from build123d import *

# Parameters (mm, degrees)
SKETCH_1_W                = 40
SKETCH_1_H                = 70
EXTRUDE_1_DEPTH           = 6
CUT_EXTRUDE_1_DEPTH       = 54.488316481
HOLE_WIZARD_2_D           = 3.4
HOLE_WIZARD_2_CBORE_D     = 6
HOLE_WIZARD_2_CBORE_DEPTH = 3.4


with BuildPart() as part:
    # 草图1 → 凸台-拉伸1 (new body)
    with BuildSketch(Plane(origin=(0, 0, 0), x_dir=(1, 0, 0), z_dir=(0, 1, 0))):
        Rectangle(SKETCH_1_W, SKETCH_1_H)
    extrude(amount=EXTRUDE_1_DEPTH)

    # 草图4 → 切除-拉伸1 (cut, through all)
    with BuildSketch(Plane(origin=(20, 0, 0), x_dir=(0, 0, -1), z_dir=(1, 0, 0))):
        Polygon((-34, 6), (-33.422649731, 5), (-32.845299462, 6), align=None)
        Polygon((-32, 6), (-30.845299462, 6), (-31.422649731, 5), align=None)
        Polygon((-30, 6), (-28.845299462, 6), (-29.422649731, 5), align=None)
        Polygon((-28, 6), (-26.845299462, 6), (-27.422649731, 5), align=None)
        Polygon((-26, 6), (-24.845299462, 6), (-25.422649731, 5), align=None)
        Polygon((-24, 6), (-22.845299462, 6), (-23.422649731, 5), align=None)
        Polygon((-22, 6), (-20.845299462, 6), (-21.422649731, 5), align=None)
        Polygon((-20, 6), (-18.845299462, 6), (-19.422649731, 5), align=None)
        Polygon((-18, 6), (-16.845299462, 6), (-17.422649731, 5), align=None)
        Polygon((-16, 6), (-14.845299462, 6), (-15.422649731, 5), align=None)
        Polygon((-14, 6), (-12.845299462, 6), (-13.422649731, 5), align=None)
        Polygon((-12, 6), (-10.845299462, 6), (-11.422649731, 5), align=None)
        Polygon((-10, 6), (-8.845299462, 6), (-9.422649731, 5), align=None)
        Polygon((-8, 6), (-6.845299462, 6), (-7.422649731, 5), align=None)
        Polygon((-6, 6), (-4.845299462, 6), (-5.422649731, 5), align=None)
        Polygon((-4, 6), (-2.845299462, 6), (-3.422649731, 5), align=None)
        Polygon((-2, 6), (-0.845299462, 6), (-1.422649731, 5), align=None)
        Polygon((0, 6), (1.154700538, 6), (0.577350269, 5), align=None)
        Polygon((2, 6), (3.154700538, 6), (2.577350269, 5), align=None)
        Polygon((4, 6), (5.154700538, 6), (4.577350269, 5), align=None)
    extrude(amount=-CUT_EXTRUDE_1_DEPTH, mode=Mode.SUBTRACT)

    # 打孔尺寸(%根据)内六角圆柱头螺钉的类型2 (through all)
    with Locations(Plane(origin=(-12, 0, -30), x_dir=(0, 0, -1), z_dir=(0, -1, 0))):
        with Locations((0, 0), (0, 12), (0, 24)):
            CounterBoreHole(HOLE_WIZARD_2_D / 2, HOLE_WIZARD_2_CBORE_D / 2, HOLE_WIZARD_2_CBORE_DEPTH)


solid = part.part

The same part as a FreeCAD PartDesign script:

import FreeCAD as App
import Part
import Sketcher
Q = App.Units.Quantity

doc = App.newDocument("Part")
params = doc.addObject("Spreadsheet::Sheet", "Params")
for row, (alias, value) in enumerate([
    ("sketch1_width", "40 mm"),
    ("sketch1_height", "70 mm"),
    ("pad1_length", "6 mm"),
    ("sketch3_diameter", "3.4 mm"),
    ("hole_diameter", "3.4 mm"),
    ("hole_cbore_diameter", "6 mm"),
    ("hole_cbore_depth", "3.4 mm"),
], start=1):
    params.set(f"A{row}", alias)
    params.set(f"B{row}", "=" + value)
    params.setAlias(f"B{row}", alias)

body = doc.addObject("PartDesign::Body", "Body")

# Sketch on XZ plane
sketch1 = body.newObject("Sketcher::SketchObject", "Sketch")
sketch1.AttachmentSupport = (doc.getObject("XZ_Plane"), [""])
sketch1.MapMode = "FlatFace"
sketch1.addGeometry(Part.LineSegment(App.Vector(-20, -35, 0), App.Vector(-20, 35, 0)), False)
sketch1.addGeometry(Part.LineSegment(App.Vector(-20, 35, 0), App.Vector(20, 35, 0)), False)
sketch1.addGeometry(Part.LineSegment(App.Vector(20, 35, 0), App.Vector(20, -35, 0)), False)
sketch1.addGeometry(Part.LineSegment(App.Vector(20, -35, 0), App.Vector(-20, -35, 0)), False)
sketch1.addConstraint(Sketcher.Constraint("Coincident", 0, 2, 1, 1))
sketch1.addConstraint(Sketcher.Constraint("Coincident", 1, 2, 2, 1))
sketch1.addConstraint(Sketcher.Constraint("Coincident", 2, 2, 3, 1))
sketch1.addConstraint(Sketcher.Constraint("Coincident", 3, 2, 0, 1))
sketch1.addConstraint(Sketcher.Constraint("Vertical", 0))
sketch1.addConstraint(Sketcher.Constraint("Horizontal", 1))
sketch1.addConstraint(Sketcher.Constraint("Vertical", 2))
sketch1.addConstraint(Sketcher.Constraint("Horizontal", 3))
sketch1.addConstraint(Sketcher.Constraint("Symmetric", 0, 2, 2, 2, -1, 1))
sketch1.addConstraint(Sketcher.Constraint("DistanceX", 1, 1, 1, 2, Q("40 mm")))
sketch1.addConstraint(Sketcher.Constraint("DistanceY", 0, 1, 0, 2, Q("70 mm")))
sketch1.setExpression("Constraints[9]", "Params.sketch1_width")
sketch1.setExpression("Constraints[10]", "Params.sketch1_height")
pad1 = body.newObject("PartDesign::Pad", "Pad")
pad1.Profile = sketch1
pad1.setExpression("Length", "Params.pad1_length")
pad1.Reversed = True

# Sketch on YZ plane
sketch2 = body.newObject("Sketcher::SketchObject", "Sketch001")
sketch2.AttachmentSupport = (doc.getObject("YZ_Plane"), [""])
sketch2.MapMode = "FlatFace"
sketch2.AttachmentOffset = App.Placement(App.Vector(0, 0, 20), App.Rotation())
sketch2.addGeometry(Part.LineSegment(App.Vector(6, 34, 0), App.Vector(5, 33.42265, 0)), False)
sketch2.addGeometry(Part.LineSegment(App.Vector(5, 33.42265, 0), App.Vector(6, 32.845299, 0)), False)
sketch2.addGeometry(Part.LineSegment(App.Vector(6, 32.845299, 0), App.Vector(6, 34, 0)), False)
sketch2.addGeometry(Part.LineSegment(App.Vector(6, 30.845299, 0), App.Vector(6, 32, 0)), False)
sketch2.addGeometry(Part.LineSegment(App.Vector(6, 32, 0), App.Vector(5, 31.42265, 0)), False)
sketch2.addGeometry(Part.LineSegment(App.Vector(5, 31.42265, 0), App.Vector(6, 30.845299, 0)), False)
sketch2.addGeometry(Part.LineSegment(App.Vector(6, 28.845299, 0), App.Vector(6, 30, 0)), False)
sketch2.addGeometry(Part.LineSegment(App.Vector(6, 30, 0), App.Vector(5, 29.42265, 0)), False)
sketch2.addGeometry(Part.LineSegment(App.Vector(5, 29.42265, 0), App.Vector(6, 28.845299, 0)), False)
sketch2.addGeometry(Part.LineSegment(App.Vector(6, 26.845299, 0), App.Vector(6, 28, 0)), False)
sketch2.addGeometry(Part.LineSegment(App.Vector(6, 28, 0), App.Vector(5, 27.42265, 0)), False)
sketch2.addGeometry(Part.LineSegment(App.Vector(5, 27.42265, 0), App.Vector(6, 26.845299, 0)), False)
sketch2.addGeometry(Part.LineSegment(App.Vector(6, 24.845299, 0), App.Vector(6, 26, 0)), False)
sketch2.addGeometry(Part.LineSegment(App.Vector(6, 26, 0), App.Vector(5, 25.42265, 0)), False)
sketch2.addGeometry(Part.LineSegment(App.Vector(5, 25.42265, 0), App.Vector(6, 24.845299, 0)), False)
sketch2.addGeometry(Part.LineSegment(App.Vector(6, 22.845299, 0), App.Vector(6, 24, 0)), False)
sketch2.addGeometry(Part.LineSegment(App.Vector(6, 24, 0), App.Vector(5, 23.42265, 0)), False)
sketch2.addGeometry(Part.LineSegment(App.Vector(5, 23.42265, 0), App.Vector(6, 22.845299, 0)), False)
sketch2.addGeometry(Part.LineSegment(App.Vector(6, 20.845299, 0), App.Vector(6, 22, 0)), False)
sketch2.addGeometry(Part.LineSegment(App.Vector(6, 22, 0), App.Vector(5, 21.42265, 0)), False)
sketch2.addGeometry(Part.LineSegment(App.Vector(5, 21.42265, 0), App.Vector(6, 20.845299, 0)), False)
sketch2.addGeometry(Part.LineSegment(App.Vector(6, 18.845299, 0), App.Vector(6, 20, 0)), False)
sketch2.addGeometry(Part.LineSegment(App.Vector(6, 20, 0), App.Vector(5, 19.42265, 0)), False)
sketch2.addGeometry(Part.LineSegment(App.Vector(5, 19.42265, 0), App.Vector(6, 18.845299, 0)), False)
sketch2.addGeometry(Part.LineSegment(App.Vector(6, 16.845299, 0), App.Vector(6, 18, 0)), False)
sketch2.addGeometry(Part.LineSegment(App.Vector(6, 18, 0), App.Vector(5, 17.42265, 0)), False)
sketch2.addGeometry(Part.LineSegment(App.Vector(5, 17.42265, 0), App.Vector(6, 16.845299, 0)), False)
sketch2.addGeometry(Part.LineSegment(App.Vector(6, 14.845299, 0), App.Vector(6, 16, 0)), False)
sketch2.addGeometry(Part.LineSegment(App.Vector(6, 16, 0), App.Vector(5, 15.42265, 0)), False)
sketch2.addGeometry(Part.LineSegment(App.Vector(5, 15.42265, 0), App.Vector(6, 14.845299, 0)), False)
sketch2.addGeometry(Part.LineSegment(App.Vector(6, 12.845299, 0), App.Vector(6, 14, 0)), False)
sketch2.addGeometry(Part.LineSegment(App.Vector(6, 14, 0), App.Vector(5, 13.42265, 0)), False)
sketch2.addGeometry(Part.LineSegment(App.Vector(5, 13.42265, 0), App.Vector(6, 12.845299, 0)), False)
sketch2.addGeometry(Part.LineSegment(App.Vector(6, 10.845299, 0), App.Vector(6, 12, 0)), False)
sketch2.addGeometry(Part.LineSegment(App.Vector(6, 12, 0), App.Vector(5, 11.42265, 0)), False)
sketch2.addGeometry(Part.LineSegment(App.Vector(5, 11.42265, 0), App.Vector(6, 10.845299, 0)), False)
sketch2.addGeometry(Part.LineSegment(App.Vector(6, 8.845299, 0), App.Vector(6, 10, 0)), False)
sketch2.addGeometry(Part.LineSegment(App.Vector(6, 10, 0), App.Vector(5, 9.42265, 0)), False)
sketch2.addGeometry(Part.LineSegment(App.Vector(5, 9.42265, 0), App.Vector(6, 8.845299, 0)), False)
sketch2.addGeometry(Part.LineSegment(App.Vector(6, 6.845299, 0), App.Vector(6, 8, 0)), False)
sketch2.addGeometry(Part.LineSegment(App.Vector(6, 8, 0), App.Vector(5, 7.42265, 0)), False)
sketch2.addGeometry(Part.LineSegment(App.Vector(5, 7.42265, 0), App.Vector(6, 6.845299, 0)), False)
sketch2.addGeometry(Part.LineSegment(App.Vector(6, 4.845299, 0), App.Vector(6, 6, 0)), False)
sketch2.addGeometry(Part.LineSegment(App.Vector(6, 6, 0), App.Vector(5, 5.42265, 0)), False)
sketch2.addGeometry(Part.LineSegment(App.Vector(5, 5.42265, 0), App.Vector(6, 4.845299, 0)), False)
sketch2.addGeometry(Part.LineSegment(App.Vector(6, 2.845299, 0), App.Vector(6, 4, 0)), False)
sketch2.addGeometry(Part.LineSegment(App.Vector(6, 4, 0), App.Vector(5, 3.42265, 0)), False)
sketch2.addGeometry(Part.LineSegment(App.Vector(5, 3.42265, 0), App.Vector(6, 2.845299, 0)), False)
sketch2.addGeometry(Part.LineSegment(App.Vector(6, 0.845299, 0), App.Vector(6, 2, 0)), False)
sketch2.addGeometry(Part.LineSegment(App.Vector(6, 2, 0), App.Vector(5, 1.42265, 0)), False)
sketch2.addGeometry(Part.LineSegment(App.Vector(5, 1.42265, 0), App.Vector(6, 0.845299, 0)), False)
sketch2.addGeometry(Part.LineSegment(App.Vector(6, -1.154701, 0), App.Vector(6, 0, 0)), False)
sketch2.addGeometry(Part.LineSegment(App.Vector(6, 0, 0), App.Vector(5, -0.57735, 0)), False)
sketch2.addGeometry(Part.LineSegment(App.Vector(5, -0.57735, 0), App.Vector(6, -1.154701, 0)), False)
sketch2.addGeometry(Part.LineSegment(App.Vector(6, -3.154701, 0), App.Vector(6, -2, 0)), False)
sketch2.addGeometry(Part.LineSegment(App.Vector(6, -2, 0), App.Vector(5, -2.57735, 0)), False)
sketch2.addGeometry(Part.LineSegment(App.Vector(5, -2.57735, 0), App.Vector(6, -3.154701, 0)), False)
sketch2.addGeometry(Part.LineSegment(App.Vector(6, -5.154701, 0), App.Vector(6, -4, 0)), False)
sketch2.addGeometry(Part.LineSegment(App.Vector(6, -4, 0), App.Vector(5, -4.57735, 0)), False)
sketch2.addGeometry(Part.LineSegment(App.Vector(5, -4.57735, 0), App.Vector(6, -5.154701, 0)), False)
sketch2.addConstraint(Sketcher.Constraint("Coincident", 0, 2, 1, 1))
sketch2.addConstraint(Sketcher.Constraint("Coincident", 1, 2, 2, 1))
sketch2.addConstraint(Sketcher.Constraint("Coincident", 2, 2, 0, 1))
sketch2.addConstraint(Sketcher.Constraint("Coincident", 3, 2, 4, 1))
sketch2.addConstraint(Sketcher.Constraint("Coincident", 4, 2, 5, 1))
sketch2.addConstraint(Sketcher.Constraint("Coincident", 5, 2, 3, 1))
sketch2.addConstraint(Sketcher.Constraint("Coincident", 6, 2, 7, 1))
sketch2.addConstraint(Sketcher.Constraint("Coincident", 7, 2, 8, 1))
sketch2.addConstraint(Sketcher.Constraint("Coincident", 8, 2, 6, 1))
sketch2.addConstraint(Sketcher.Constraint("Coincident", 9, 2, 10, 1))
sketch2.addConstraint(Sketcher.Constraint("Coincident", 10, 2, 11, 1))
sketch2.addConstraint(Sketcher.Constraint("Coincident", 11, 2, 9, 1))
sketch2.addConstraint(Sketcher.Constraint("Coincident", 12, 2, 13, 1))
sketch2.addConstraint(Sketcher.Constraint("Coincident", 13, 2, 14, 1))
sketch2.addConstraint(Sketcher.Constraint("Coincident", 14, 2, 12, 1))
sketch2.addConstraint(Sketcher.Constraint("Coincident", 15, 2, 16, 1))
sketch2.addConstraint(Sketcher.Constraint("Coincident", 16, 2, 17, 1))
sketch2.addConstraint(Sketcher.Constraint("Coincident", 17, 2, 15, 1))
sketch2.addConstraint(Sketcher.Constraint("Coincident", 18, 2, 19, 1))
sketch2.addConstraint(Sketcher.Constraint("Coincident", 19, 2, 20, 1))
sketch2.addConstraint(Sketcher.Constraint("Coincident", 20, 2, 18, 1))
sketch2.addConstraint(Sketcher.Constraint("Coincident", 21, 2, 22, 1))
sketch2.addConstraint(Sketcher.Constraint("Coincident", 22, 2, 23, 1))
sketch2.addConstraint(Sketcher.Constraint("Coincident", 23, 2, 21, 1))
sketch2.addConstraint(Sketcher.Constraint("Coincident", 24, 2, 25, 1))
sketch2.addConstraint(Sketcher.Constraint("Coincident", 25, 2, 26, 1))
sketch2.addConstraint(Sketcher.Constraint("Coincident", 26, 2, 24, 1))
sketch2.addConstraint(Sketcher.Constraint("Coincident", 27, 2, 28, 1))
sketch2.addConstraint(Sketcher.Constraint("Coincident", 28, 2, 29, 1))
sketch2.addConstraint(Sketcher.Constraint("Coincident", 29, 2, 27, 1))
sketch2.addConstraint(Sketcher.Constraint("Coincident", 30, 2, 31, 1))
sketch2.addConstraint(Sketcher.Constraint("Coincident", 31, 2, 32, 1))
sketch2.addConstraint(Sketcher.Constraint("Coincident", 32, 2, 30, 1))
sketch2.addConstraint(Sketcher.Constraint("Coincident", 33, 2, 34, 1))
sketch2.addConstraint(Sketcher.Constraint("Coincident", 34, 2, 35, 1))
sketch2.addConstraint(Sketcher.Constraint("Coincident", 35, 2, 33, 1))
sketch2.addConstraint(Sketcher.Constraint("Coincident", 36, 2, 37, 1))
sketch2.addConstraint(Sketcher.Constraint("Coincident", 37, 2, 38, 1))
sketch2.addConstraint(Sketcher.Constraint("Coincident", 38, 2, 36, 1))
sketch2.addConstraint(Sketcher.Constraint("Coincident", 39, 2, 40, 1))
sketch2.addConstraint(Sketcher.Constraint("Coincident", 40, 2, 41, 1))
sketch2.addConstraint(Sketcher.Constraint("Coincident", 41, 2, 39, 1))
sketch2.addConstraint(Sketcher.Constraint("Coincident", 42, 2, 43, 1))
sketch2.addConstraint(Sketcher.Constraint("Coincident", 43, 2, 44, 1))
sketch2.addConstraint(Sketcher.Constraint("Coincident", 44, 2, 42, 1))
sketch2.addConstraint(Sketcher.Constraint("Coincident", 45, 2, 46, 1))
sketch2.addConstraint(Sketcher.Constraint("Coincident", 46, 2, 47, 1))
sketch2.addConstraint(Sketcher.Constraint("Coincident", 47, 2, 45, 1))
sketch2.addConstraint(Sketcher.Constraint("Coincident", 48, 2, 49, 1))
sketch2.addConstraint(Sketcher.Constraint("Coincident", 49, 2, 50, 1))
sketch2.addConstraint(Sketcher.Constraint("Coincident", 50, 2, 48, 1))
sketch2.addConstraint(Sketcher.Constraint("Coincident", 51, 2, 52, 1))
sketch2.addConstraint(Sketcher.Constraint("Coincident", 52, 2, 53, 1))
sketch2.addConstraint(Sketcher.Constraint("Coincident", 53, 2, 51, 1))
sketch2.addConstraint(Sketcher.Constraint("Coincident", 54, 2, 55, 1))
sketch2.addConstraint(Sketcher.Constraint("Coincident", 55, 2, 56, 1))
sketch2.addConstraint(Sketcher.Constraint("Coincident", 56, 2, 54, 1))
sketch2.addConstraint(Sketcher.Constraint("Coincident", 57, 2, 58, 1))
sketch2.addConstraint(Sketcher.Constraint("Coincident", 58, 2, 59, 1))
sketch2.addConstraint(Sketcher.Constraint("Coincident", 59, 2, 57, 1))
sketch2.addConstraint(Sketcher.Constraint("Vertical", 2))
sketch2.addConstraint(Sketcher.Constraint("Vertical", 3))
sketch2.addConstraint(Sketcher.Constraint("Vertical", 6))
sketch2.addConstraint(Sketcher.Constraint("Vertical", 9))
sketch2.addConstraint(Sketcher.Constraint("Vertical", 12))
sketch2.addConstraint(Sketcher.Constraint("Vertical", 15))
sketch2.addConstraint(Sketcher.Constraint("Vertical", 18))
sketch2.addConstraint(Sketcher.Constraint("Vertical", 21))
sketch2.addConstraint(Sketcher.Constraint("Vertical", 24))
sketch2.addConstraint(Sketcher.Constraint("Vertical", 27))
sketch2.addConstraint(Sketcher.Constraint("Vertical", 30))
sketch2.addConstraint(Sketcher.Constraint("Vertical", 33))
sketch2.addConstraint(Sketcher.Constraint("Vertical", 36))
sketch2.addConstraint(Sketcher.Constraint("Vertical", 39))
sketch2.addConstraint(Sketcher.Constraint("Vertical", 42))
sketch2.addConstraint(Sketcher.Constraint("Vertical", 45))
sketch2.addConstraint(Sketcher.Constraint("Vertical", 48))
sketch2.addConstraint(Sketcher.Constraint("Vertical", 51))
sketch2.addConstraint(Sketcher.Constraint("Vertical", 54))
sketch2.addConstraint(Sketcher.Constraint("Vertical", 57))
sketch2.addConstraint(Sketcher.Constraint("Symmetric", 48, 2, 54, 2, -1))
sketch2.addConstraint(Sketcher.Constraint("Symmetric", 45, 2, 57, 2, -1))
sketch2.addConstraint(Sketcher.Constraint("PointOnObject", 51, 2, -1))
sketch2.addConstraint(Sketcher.Constraint("Parallel", 0, 4))
sketch2.addConstraint(Sketcher.Constraint("Parallel", 1, 5))
sketch2.addConstraint(Sketcher.Constraint("Parallel", 4, 7))
sketch2.addConstraint(Sketcher.Constraint("Parallel", 5, 8))
sketch2.addConstraint(Sketcher.Constraint("Parallel", 7, 10))
sketch2.addConstraint(Sketcher.Constraint("Parallel", 8, 11))
sketch2.addConstraint(Sketcher.Constraint("Parallel", 10, 13))
sketch2.addConstraint(Sketcher.Constraint("Parallel", 11, 14))
sketch2.addConstraint(Sketcher.Constraint("Parallel", 13, 16))
sketch2.addConstraint(Sketcher.Constraint("Parallel", 14, 17))
sketch2.addConstraint(Sketcher.Constraint("Parallel", 16, 19))
sketch2.addConstraint(Sketcher.Constraint("Parallel", 17, 20))
sketch2.addConstraint(Sketcher.Constraint("Parallel", 19, 22))
sketch2.addConstraint(Sketcher.Constraint("Parallel", 20, 23))
sketch2.addConstraint(Sketcher.Constraint("Parallel", 22, 25))
sketch2.addConstraint(Sketcher.Constraint("Parallel", 23, 26))
sketch2.addConstraint(Sketcher.Constraint("Parallel", 25, 28))
sketch2.addConstraint(Sketcher.Constraint("Parallel", 26, 29))
sketch2.addConstraint(Sketcher.Constraint("Parallel", 28, 31))
sketch2.addConstraint(Sketcher.Constraint("Parallel", 29, 32))
sketch2.addConstraint(Sketcher.Constraint("Parallel", 31, 34))
sketch2.addConstraint(Sketcher.Constraint("Parallel", 32, 35))
sketch2.addConstraint(Sketcher.Constraint("Parallel", 34, 37))
sketch2.addConstraint(Sketcher.Constraint("Parallel", 35, 38))
sketch2.addConstraint(Sketcher.Constraint("Parallel", 37, 40))
sketch2.addConstraint(Sketcher.Constraint("Parallel", 38, 41))
sketch2.addConstraint(Sketcher.Constraint("Parallel", 40, 43))
sketch2.addConstraint(Sketcher.Constraint("Parallel", 41, 44))
sketch2.addConstraint(Sketcher.Constraint("Parallel", 43, 46))
sketch2.addConstraint(Sketcher.Constraint("Parallel", 44, 47))
sketch2.addConstraint(Sketcher.Constraint("Parallel", 46, 49))
sketch2.addConstraint(Sketcher.Constraint("Parallel", 47, 50))
sketch2.addConstraint(Sketcher.Constraint("Parallel", 49, 52))
sketch2.addConstraint(Sketcher.Constraint("Parallel", 50, 53))
sketch2.addConstraint(Sketcher.Constraint("Parallel", 52, 55))
sketch2.addConstraint(Sketcher.Constraint("Parallel", 53, 56))
sketch2.addConstraint(Sketcher.Constraint("Parallel", 55, 58))
sketch2.addConstraint(Sketcher.Constraint("Parallel", 56, 59))
sketch2.addConstraint(Sketcher.Constraint("Vertical", 2, 2, 3, 2))
sketch2.addConstraint(Sketcher.Constraint("Vertical", 0, 2, 4, 2))
sketch2.addConstraint(Sketcher.Constraint("Vertical", 5, 2, 6, 2))
sketch2.addConstraint(Sketcher.Constraint("Vertical", 4, 2, 7, 2))
sketch2.addConstraint(Sketcher.Constraint("Vertical", 8, 2, 9, 2))
sketch2.addConstraint(Sketcher.Constraint("Vertical", 7, 2, 10, 2))
sketch2.addConstraint(Sketcher.Constraint("Vertical", 11, 2, 12, 2))
sketch2.addConstraint(Sketcher.Constraint("Vertical", 10, 2, 13, 2))
sketch2.addConstraint(Sketcher.Constraint("Vertical", 14, 2, 15, 2))
sketch2.addConstraint(Sketcher.Constraint("Vertical", 13, 2, 16, 2))
sketch2.addConstraint(Sketcher.Constraint("Vertical", 17, 2, 18, 2))
sketch2.addConstraint(Sketcher.Constraint("Vertical", 16, 2, 19, 2))
sketch2.addConstraint(Sketcher.Constraint("Vertical", 20, 2, 21, 2))
sketch2.addConstraint(Sketcher.Constraint("Vertical", 19, 2, 22, 2))
sketch2.addConstraint(Sketcher.Constraint("Vertical", 23, 2, 24, 2))
sketch2.addConstraint(Sketcher.Constraint("Vertical", 22, 2, 25, 2))
sketch2.addConstraint(Sketcher.Constraint("Vertical", 26, 2, 27, 2))
sketch2.addConstraint(Sketcher.Constraint("Vertical", 25, 2, 28, 2))
sketch2.addConstraint(Sketcher.Constraint("Vertical", 29, 2, 30, 2))
sketch2.addConstraint(Sketcher.Constraint("Vertical", 28, 2, 31, 2))
sketch2.addConstraint(Sketcher.Constraint("Vertical", 32, 2, 33, 2))
sketch2.addConstraint(Sketcher.Constraint("Vertical", 31, 2, 34, 2))
sketch2.addConstraint(Sketcher.Constraint("Vertical", 35, 2, 36, 2))
sketch2.addConstraint(Sketcher.Constraint("Vertical", 34, 2, 37, 2))
sketch2.addConstraint(Sketcher.Constraint("Vertical", 38, 2, 39, 2))
sketch2.addConstraint(Sketcher.Constraint("Vertical", 37, 2, 40, 2))
sketch2.addConstraint(Sketcher.Constraint("Vertical", 41, 2, 42, 2))
sketch2.addConstraint(Sketcher.Constraint("Vertical", 40, 2, 43, 2))
sketch2.addConstraint(Sketcher.Constraint("Vertical", 44, 2, 45, 2))
sketch2.addConstraint(Sketcher.Constraint("Vertical", 43, 2, 46, 2))
sketch2.addConstraint(Sketcher.Constraint("Vertical", 47, 2, 48, 2))
sketch2.addConstraint(Sketcher.Constraint("Vertical", 46, 2, 49, 2))
sketch2.addConstraint(Sketcher.Constraint("Vertical", 50, 2, 51, 2))
sketch2.addConstraint(Sketcher.Constraint("Vertical", 49, 2, 52, 2))
sketch2.addConstraint(Sketcher.Constraint("Vertical", 52, 2, 55, 2))
sketch2.addConstraint(Sketcher.Constraint("Vertical", 55, 2, 58, 2))
sketch2.addConstraint(Sketcher.Constraint("Equal", 0, 1))
sketch2.addConstraint(Sketcher.Constraint("Angle", 0, Q("-150 deg")))
sketch2.addConstraint(Sketcher.Constraint("DistanceX", -1, 1, 0, 2, Q("5 mm")))
sketch2.addConstraint(Sketcher.Constraint("DistanceX", -1, 1, 1, 2, Q("6 mm")))
sketch2.addConstraint(Sketcher.Constraint("DistanceY", -1, 1, 2, 2, Q("34 mm")))
sketch2.addConstraint(Sketcher.Constraint("DistanceY", -1, 1, 3, 2, Q("32 mm")))
sketch2.addConstraint(Sketcher.Constraint("DistanceY", -1, 1, 6, 2, Q("30 mm")))
sketch2.addConstraint(Sketcher.Constraint("DistanceY", -1, 1, 9, 2, Q("28 mm")))
sketch2.addConstraint(Sketcher.Constraint("DistanceY", -1, 1, 12, 2, Q("26 mm")))
sketch2.addConstraint(Sketcher.Constraint("DistanceY", -1, 1, 15, 2, Q("24 mm")))
sketch2.addConstraint(Sketcher.Constraint("DistanceY", -1, 1, 18, 2, Q("22 mm")))
sketch2.addConstraint(Sketcher.Constraint("DistanceY", -1, 1, 21, 2, Q("20 mm")))
sketch2.addConstraint(Sketcher.Constraint("DistanceY", -1, 1, 24, 2, Q("18 mm")))
sketch2.addConstraint(Sketcher.Constraint("DistanceY", -1, 1, 27, 2, Q("16 mm")))
sketch2.addConstraint(Sketcher.Constraint("DistanceY", -1, 1, 30, 2, Q("14 mm")))
sketch2.addConstraint(Sketcher.Constraint("DistanceY", -1, 1, 33, 2, Q("12 mm")))
sketch2.addConstraint(Sketcher.Constraint("DistanceY", -1, 1, 36, 2, Q("10 mm")))
sketch2.addConstraint(Sketcher.Constraint("DistanceY", -1, 1, 39, 2, Q("8 mm")))
sketch2.addConstraint(Sketcher.Constraint("DistanceY", -1, 1, 42, 2, Q("6 mm")))
sketch2.addConstraint(Sketcher.Constraint("DistanceY", -1, 1, 45, 2, Q("4 mm")))
sketch2.addConstraint(Sketcher.Constraint("DistanceY", -1, 1, 48, 2, Q("2 mm")))
pocket1 = body.newObject("PartDesign::Pocket", "Pocket")
pocket1.Profile = sketch2
pocket1.Type = "ThroughAll"

# Sketch on XZ plane
sketch3 = body.newObject("Sketcher::SketchObject", "Sketch002")
sketch3.AttachmentSupport = (doc.getObject("XZ_Plane"), [""])
sketch3.MapMode = "FlatFace"
sketch3.addGeometry(Part.Circle(App.Vector(-12, -30, 0), App.Vector(0, 0, 1), 1.7), False)
sketch3.addGeometry(Part.Circle(App.Vector(0, -30, 0), App.Vector(0, 0, 1), 1.7), False)
sketch3.addGeometry(Part.Circle(App.Vector(12, -30, 0), App.Vector(0, 0, 1), 1.7), False)
sketch3.addConstraint(Sketcher.Constraint("Equal", 0, 1))
sketch3.addConstraint(Sketcher.Constraint("Equal", 1, 2))
sketch3.addConstraint(Sketcher.Constraint("Symmetric", 0, 3, 2, 3, -2))
sketch3.addConstraint(Sketcher.Constraint("PointOnObject", 1, 3, -2))
sketch3.addConstraint(Sketcher.Constraint("Horizontal", 0, 3, 1, 3))
sketch3.addConstraint(Sketcher.Constraint("Diameter", 0, Q("3.4 mm")))
sketch3.addConstraint(Sketcher.Constraint("DistanceX", 0, 3, -1, 1, Q("12 mm")))
sketch3.addConstraint(Sketcher.Constraint("DistanceY", 0, 3, -1, 1, Q("30 mm")))
sketch3.setExpression("Constraints[5]", "Params.sketch3_diameter")
doc.recompute()
hole = body.newObject("PartDesign::Hole", "Hole")
hole.Profile = sketch3
hole.ThreadType = "None"
hole.setExpression("Diameter", "Params.hole_diameter")
hole.DepthType = "ThroughAll"
hole.HoleCutType = "Counterbore"
hole.setExpression("HoleCutDiameter", "Params.hole_cbore_diameter")
hole.setExpression("HoleCutDepth", "Params.hole_cbore_depth")

doc.recompute()
